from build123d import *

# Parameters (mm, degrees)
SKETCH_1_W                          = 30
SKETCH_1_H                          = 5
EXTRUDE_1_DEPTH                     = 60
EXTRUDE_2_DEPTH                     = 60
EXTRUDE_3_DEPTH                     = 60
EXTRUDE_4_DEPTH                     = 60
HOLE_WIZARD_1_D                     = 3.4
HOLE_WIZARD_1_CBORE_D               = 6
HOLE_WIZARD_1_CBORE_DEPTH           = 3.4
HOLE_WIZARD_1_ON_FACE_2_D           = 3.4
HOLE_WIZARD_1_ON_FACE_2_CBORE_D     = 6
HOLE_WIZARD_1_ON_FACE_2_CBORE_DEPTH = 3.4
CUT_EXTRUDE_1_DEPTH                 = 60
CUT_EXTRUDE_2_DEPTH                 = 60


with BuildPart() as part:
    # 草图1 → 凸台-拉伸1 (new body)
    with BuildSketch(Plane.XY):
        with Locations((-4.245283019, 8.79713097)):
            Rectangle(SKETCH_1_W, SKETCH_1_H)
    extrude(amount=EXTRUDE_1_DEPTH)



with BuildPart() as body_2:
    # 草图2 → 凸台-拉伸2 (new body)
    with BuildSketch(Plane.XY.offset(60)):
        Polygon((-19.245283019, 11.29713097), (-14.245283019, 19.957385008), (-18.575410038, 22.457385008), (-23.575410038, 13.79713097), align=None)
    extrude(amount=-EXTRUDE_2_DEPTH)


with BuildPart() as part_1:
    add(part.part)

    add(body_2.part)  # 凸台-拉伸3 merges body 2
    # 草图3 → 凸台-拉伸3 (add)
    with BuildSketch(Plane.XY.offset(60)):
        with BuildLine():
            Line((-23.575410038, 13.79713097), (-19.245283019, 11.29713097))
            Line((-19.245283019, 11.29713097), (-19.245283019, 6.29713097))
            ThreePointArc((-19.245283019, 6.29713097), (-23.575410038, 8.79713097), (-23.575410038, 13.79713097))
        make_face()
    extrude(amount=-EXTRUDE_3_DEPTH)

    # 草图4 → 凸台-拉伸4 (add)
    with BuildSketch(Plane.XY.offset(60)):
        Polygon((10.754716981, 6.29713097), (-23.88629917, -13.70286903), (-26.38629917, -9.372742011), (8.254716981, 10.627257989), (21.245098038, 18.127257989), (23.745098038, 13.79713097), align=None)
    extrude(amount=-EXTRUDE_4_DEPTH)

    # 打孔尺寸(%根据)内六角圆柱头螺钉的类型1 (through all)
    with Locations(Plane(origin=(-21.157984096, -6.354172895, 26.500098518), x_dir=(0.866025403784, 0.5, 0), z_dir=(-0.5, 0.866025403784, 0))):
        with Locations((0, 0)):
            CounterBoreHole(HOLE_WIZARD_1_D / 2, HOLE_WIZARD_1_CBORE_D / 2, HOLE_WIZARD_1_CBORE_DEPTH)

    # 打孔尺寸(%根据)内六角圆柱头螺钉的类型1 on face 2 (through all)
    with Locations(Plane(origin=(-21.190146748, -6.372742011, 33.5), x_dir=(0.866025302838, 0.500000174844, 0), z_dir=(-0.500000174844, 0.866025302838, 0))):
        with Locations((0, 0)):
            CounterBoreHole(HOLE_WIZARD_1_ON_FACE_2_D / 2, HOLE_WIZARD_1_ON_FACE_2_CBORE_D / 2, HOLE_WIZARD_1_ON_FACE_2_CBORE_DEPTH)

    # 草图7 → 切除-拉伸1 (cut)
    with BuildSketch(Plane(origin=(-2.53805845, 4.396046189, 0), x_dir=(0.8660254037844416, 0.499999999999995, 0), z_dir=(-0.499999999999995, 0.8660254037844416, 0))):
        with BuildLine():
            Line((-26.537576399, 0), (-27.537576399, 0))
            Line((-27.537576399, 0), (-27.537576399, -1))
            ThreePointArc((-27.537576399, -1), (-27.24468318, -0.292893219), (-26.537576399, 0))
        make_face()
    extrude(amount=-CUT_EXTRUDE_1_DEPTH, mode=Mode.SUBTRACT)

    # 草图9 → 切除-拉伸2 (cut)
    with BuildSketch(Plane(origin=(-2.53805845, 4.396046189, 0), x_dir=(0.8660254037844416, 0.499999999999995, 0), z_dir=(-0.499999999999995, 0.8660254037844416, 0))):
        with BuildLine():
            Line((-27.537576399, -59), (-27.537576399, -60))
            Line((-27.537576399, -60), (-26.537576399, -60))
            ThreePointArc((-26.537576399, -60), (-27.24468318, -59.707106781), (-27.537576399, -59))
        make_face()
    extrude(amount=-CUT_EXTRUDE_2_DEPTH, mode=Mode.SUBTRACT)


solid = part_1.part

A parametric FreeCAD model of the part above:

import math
import FreeCAD as App
import Part
import Sketcher
from FreeCAD import Vector
Q = App.Units.Quantity


def add_polygon(sketch, points):
    """Adds a closed chain of lines whose ends are joined by coincident constraints."""
    first, n = sketch.GeometryCount, len(points)
    for a, b in zip(points, points[1:] + points[:1]):
        sketch.addGeometry(Part.LineSegment(App.Vector(*a, 0), App.Vector(*b, 0)), False)
    for i in range(n):
        sketch.addConstraint(Sketcher.Constraint("Coincident", first + i, 2, first + (i + 1) % n, 1))

doc = App.newDocument("Part")
params = doc.addObject("Spreadsheet::Sheet", "Params")
for row, (alias, value) in enumerate([
    ("sketch1_width", "30 mm"),
    ("sketch1_height", "5 mm"),
    ("pad1_length", "60 mm"),
    ("sketch2_length", "10 mm"),
    ("sketch2_length2", "5 mm"),
    ("pad2_length", "60 mm"),
    ("sketch3_radius", "5 mm"),
    ("pad3_length", "60 mm"),
    ("sketch4_length", "40 mm"),
    ("sketch4_length2", "15 mm"),
    ("sketch4_length3", "5 mm"),
    ("pad4_length", "60 mm"),
    ("sketch5_diameter", "3.4 mm"),
    ("hole_diameter", "3.4 mm"),
    ("hole_cbore_diameter", "6 mm"),
    ("hole_cbore_depth", "3.4 mm"),
    ("sketch6_diameter", "3.4 mm"),
    ("hole2_diameter", "3.4 mm"),
    ("hole2_cbore_diameter", "6 mm"),
    ("hole2_cbore_depth", "3.4 mm"),
    ("sketch7_radius", "1 mm"),
    ("pocket1_length", "60 mm"),
    ("sketch8_radius", "1 mm"),
    ("pocket2_length", "60 mm"),
], start=1):
    params.set(f"A{row}", alias)
    params.set(f"B{row}", "=" + value)
    params.setAlias(f"B{row}", alias)

body = doc.addObject("PartDesign::Body", "Body")

# Sketch on XY plane
sketch1 = doc.addObject("Sketcher::SketchObject", "Sketch")
body.addObject(sketch1)
sketch1.AttachmentSupport = (doc.XY_Plane, [""])
sketch1.MapMode = "FlatFace"
add_polygon(sketch1, [(-19.2, 11.3), (-19.2, 6.3), (10.8, 6.3), (10.8, 11.3)])  # lines 0-3
sketch1.addConstraint(Sketcher.Constraint("Vertical", 0))
sketch1.addConstraint(Sketcher.Constraint("Horizontal", 1))
sketch1.addConstraint(Sketcher.Constraint("Vertical", 2))
sketch1.addConstraint(Sketcher.Constraint("Horizontal", 3))
sketch1.addConstraint(Sketcher.Constraint("DistanceX", 1, 1, 1, 2, Q("30 mm")))
sketch1.addConstraint(Sketcher.Constraint("DistanceY", 0, 2, 0, 1, Q("5 mm")))
sketch1.addConstraint(Sketcher.Constraint("DistanceY", -1, 1, 0, 2, Q("6.297131 mm")))
sketch1.addConstraint(Sketcher.Constraint("DistanceX", 0, 2, -1, 1, Q("19.245283 mm")))
sketch1.setExpression("Constraints[8]", "Params.sketch1_width")
sketch1.setExpression("Constraints[9]", "Params.sketch1_height")
pad1 = doc.addObject("PartDesign::Pad", "Pad")
body.addObject(pad1)
pad1.Profile = sketch1
pad1.setExpression("Length", "Params.pad1_length")
body2 = doc.addObject("PartDesign::Body", "Body001")

# Sketch on XY plane
sketch2 = doc.addObject("Sketcher::SketchObject", "Sketch001")
body2.addObject(sketch2)
sketch2.AttachmentSupport = (doc.getObject("XY_Plane001"), [""])
sketch2.MapMode = "FlatFace"
sketch2.AttachmentOffset = App.Placement(Vector(0, 0, 60), App.Rotation())
add_polygon(sketch2, [(-19, 11), (-14, 20), (-19, 22), (-24, 14)])  # lines 0-3
sketch2.addConstraint(Sketcher.Constraint("Perpendicular", 0, 1))
sketch2.addConstraint(Sketcher.Constraint("Perpendicular", 1, 2))
sketch2.addConstraint(Sketcher.Constraint("Perpendicular", 2, 3))
sketch2.addConstraint(Sketcher.Constraint("Angle", 0, Q("60 deg")))
sketch2.addConstraint(Sketcher.Constraint("Distance", 0, Q("10 mm")))
sketch2.addConstraint(Sketcher.Constraint("Distance", 1, Q("5 mm")))
sketch2.addConstraint(Sketcher.Constraint("DistanceX", 1, 2, -1, 1, Q("18.57541 mm")))
sketch2.addConstraint(Sketcher.Constraint("DistanceY", -1, 1, 2, 2, Q("13.797131 mm")))
sketch2.setExpression("Constraints[8]", "Params.sketch2_length")
sketch2.setExpression("Constraints[9]", "Params.sketch2_length2")
pad2 = doc.addObject("PartDesign::Pad", "Pad001")
body2.addObject(pad2)
pad2.Profile = sketch2
pad2.setExpression("Length", "Params.pad2_length")
pad2.Reversed = True
body.AllowCompound = True
doc.recompute()

boolean = doc.addObject("PartDesign::Boolean", "Boolean")
body.addObject(boolean)
boolean.Type = "Fuse"
boolean.addObjects([body2])

# Sketch on XY plane
sketch3 = doc.addObject("Sketcher::SketchObject", "Sketch002")
body.addObject(sketch3)
sketch3.AttachmentSupport = (doc.XY_Plane, [""])
sketch3.MapMode = "FlatFace"
sketch3.AttachmentOffset = App.Placement(Vector(0, 0, 60), App.Rotation())
sketch3.addGeometry(Part.LineSegment(Vector(-19.2, 11.3, 0), Vector(-23.6, 13.8, 0)), False)
sketch3.addGeometry(Part.ArcOfCircle(Part.Circle(Vector(-19.2, 11.3, 0), Vector(0, 0, 1), 5), math.radians(150), math.radians(270)), False)
sketch3.addGeometry(Part.LineSegment(Vector(-19.2, 6.3, 0), Vector(-19.2, 11.3, 0)), False)
sketch3.addConstraint(Sketcher.Constraint("Coincident", 0, 2, 1, 1))
sketch3.addConstraint(Sketcher.Constraint("Coincident", 1, 2, 2, 1))
sketch3.addConstraint(Sketcher.Constraint("Coincident", 2, 2, 0, 1))
sketch3.addConstraint(Sketcher.Constraint("Vertical", 2))
sketch3.addConstraint(Sketcher.Constraint("Coincident", 2, 2, 1, 3))
sketch3.addConstraint(Sketcher.Constraint("Radius", 1, Q("5 mm")))
sketch3.addConstraint(Sketcher.Constraint("Angle", 0, Q("150 deg")))
sketch3.addConstraint(Sketcher.Constraint("DistanceY", -1, 1, 1, 3, Q("11.297131 mm")))
sketch3.addConstraint(Sketcher.Constraint("DistanceX", 0, 2, -1, 1, Q("23.57541 mm")))
sketch3.setExpression("Constraints[5]", "Params.sketch3_radius")
pad3 = doc.addObject("PartDesign::Pad", "Pad002")
body.addObject(pad3)
pad3.Profile = sketch3
pad3.setExpression("Length", "Params.pad3_length")
pad3.Reversed = True

# Sketch on XY plane
sketch4 = doc.addObject("Sketcher::SketchObject", "Sketch003")
body.addObject(sketch4)
sketch4.AttachmentSupport = (doc.XY_Plane, [""])
sketch4.MapMode = "FlatFace"
sketch4.AttachmentOffset = App.Placement(Vector(0, 0, 60), App.Rotation())
add_polygon(sketch4, [(-24, -14), (11, 6), (24, 14), (21, 18), (8, 11), (-26, -9)])  # lines 0-5
sketch4.addConstraint(Sketcher.Constraint("Parallel", 0, 1))
sketch4.addConstraint(Sketcher.Constraint("Perpendicular", 1, 2))
sketch4.addConstraint(Sketcher.Constraint("Perpendicular", 2, 3))
sketch4.addConstraint(Sketcher.Constraint("Parallel", 3, 4))
sketch4.addConstraint(Sketcher.Constraint("Perpendicular", 4, 5))
sketch4.addConstraint(Sketcher.Constraint("Equal", 1, 3))
sketch4.addConstraint(Sketcher.Constraint("Angle", 0, Q("30 deg")))
sketch4.addConstraint(Sketcher.Constraint("Distance", 0, Q("40 mm")))
sketch4.addConstraint(Sketcher.Constraint("Distance", 1, Q("15 mm")))
sketch4.addConstraint(Sketcher.Constraint("Distance", 2, Q("5 mm")))
sketch4.addConstraint(Sketcher.Constraint("DistanceX", -1, 1, 1, 2, Q("23.745098 mm")))
sketch4.addConstraint(Sketcher.Constraint("DistanceY", -1, 1, 0, 2, Q("6.297131 mm")))
sketch4.setExpression("Constraints[13]", "Params.sketch4_length")
sketch4.setExpression("Constraints[14]", "Params.sketch4_length2")
sketch4.setExpression("Constraints[15]", "Params.sketch4_length3")
pad4 = doc.addObject("PartDesign::Pad", "Pad003")
body.addObject(pad4)
pad4.Profile = sketch4
pad4.setExpression("Length", "Params.pad4_length")
pad4.Reversed = True

# Sketch on an angled plane
sketch5 = doc.addObject("Sketcher::SketchObject", "Sketch004")
body.addObject(sketch5)
sketch5.Placement = App.Placement(Vector(-2.538058, 4.396046, 0), App.Rotation(Vector(0.866025404, 0.5, 0), Vector(0, 0, -1), Vector(-0.5, 0.866025404, 0), "ZXY"))
sketch5.addGeometry(Part.Circle(Vector(-21.5, -26.5, 0), Vector(0, 0, 1), 1.7), False)
sketch5.addConstraint(Sketcher.Constraint("Diameter", 0, Q("3.4 mm")))
sketch5.addConstraint(Sketcher.Constraint("DistanceY", 0, 3, -1, 1, Q("26.500099 mm")))
sketch5.addConstraint(Sketcher.Constraint("DistanceX", 0, 3, -1, 1, Q("21.500438 mm")))
sketch5.setExpression("Constraints[0]", "Params.sketch5_diameter")
doc.recompute()
hole = doc.addObject("PartDesign::Hole", "Hole")
body.addObject(hole)
hole.Profile = sketch5
hole.ThreadType = "None"
hole.setExpression("Diameter", "Params.hole_diameter")
hole.DepthType = "ThroughAll"
hole.HoleCutType = "Counterbore"
hole.setExpression("HoleCutDiameter", "Params.hole_cbore_diameter")
hole.setExpression("HoleCutDepth", "Params.hole_cbore_depth")

# Sketch on an angled plane
sketch6 = doc.addObject("Sketcher::SketchObject", "Sketch005")
body.addObject(sketch6)
sketch6.Placement = App.Placement(Vector(-2.538062, 4.396049, 0), App.Rotation(Vector(0.866025303, 0.500000175, 0), Vector(0, 0, -1), Vector(-0.500000175, 0.866025303, 0), "ZXY"))
sketch6.addGeometry(Part.Circle(Vector(-21.5, -33.5, 0), Vector(0, 0, 1), 1.7), False)
sketch6.addConstraint(Sketcher.Constraint("Diameter", 0, Q("3.4 mm")))
sketch6.addConstraint(Sketcher.Constraint("DistanceY", 0, 3, -1, 1, Q("33.5 mm")))
sketch6.addConstraint(Sketcher.Constraint("DistanceX", 0, 3, -1, 1, Q("21.537575 mm")))
sketch6.setExpression("Constraints[0]", "Params.sketch6_diameter")
doc.recompute()
hole2 = doc.addObject("PartDesign::Hole", "Hole001")
body.addObject(hole2)
hole2.Profile = sketch6
hole2.ThreadType = "None"
hole2.setExpression("Diameter", "Params.hole2_diameter")
hole2.DepthType = "ThroughAll"
hole2.HoleCutType = "Counterbore"
hole2.setExpression("HoleCutDiameter", "Params.hole2_cbore_diameter")
hole2.setExpression("HoleCutDepth", "Params.hole2_cbore_depth")

# Sketch on an angled plane
sketch7 = doc.addObject("Sketcher::SketchObject", "Sketch006")
body.addObject(sketch7)
sketch7.Placement = App.Placement(Vector(-2.538058, 4.396046, 0), App.Rotation(Vector(0.866025404, 0.5, 0), Vector(0, 0, -1), Vector(-0.5, 0.866025404, 0), "ZXY"))
sketch7.addGeometry(Part.LineSegment(Vector(-26.5, 0, 0), Vector(-27.5, 0, 0)), False)
sketch7.addGeometry(Part.LineSegment(Vector(-27.5, 0, 0), Vector(-27.5, -1, 0)), False)
sketch7.addGeometry(Part.ArcOfCircle(Part.Circle(Vector(-26.5, -1, 0), Vector(0, 0, 1), 1), math.radians(90), math.radians(180)), False)
sketch7.addConstraint(Sketcher.Constraint("Coincident", 0, 2, 1, 1))
sketch7.addConstraint(Sketcher.Constraint("Tangent", 1, 2, 2, 2))
sketch7.addConstraint(Sketcher.Constraint("Tangent", 2, 1, 0, 1))
sketch7.addConstraint(Sketcher.Constraint("Horizontal", 0))
sketch7.addConstraint(Sketcher.Constraint("Vertical", 1))
sketch7.addConstraint(Sketcher.Constraint("PointOnObject", 0, 2, -1))
sketch7.addConstraint(Sketcher.Constraint("Radius", 2, Q("1 mm")))
sketch7.addConstraint(Sketcher.Constraint("DistanceX", 2, 3, -1, 1, Q("26.537576 mm")))
sketch7.setExpression("Constraints[6]", "Params.sketch7_radius")
pocket1 = doc.addObject("PartDesign::Pocket", "Pocket")
body.addObject(pocket1)
pocket1.Profile = sketch7
pocket1.setExpression("Length", "Params.pocket1_length")

# Sketch on an angled plane
sketch8 = doc.addObject("Sketcher::SketchObject", "Sketch007")
body.addObject(sketch8)
sketch8.Placement = App.Placement(Vector(-2.538058, 4.396046, 0), App.Rotation(Vector(0.866025404, 0.5, 0), Vector(0, 0, -1), Vector(-0.5, 0.866025404, 0), "ZXY"))
sketch8.addGeometry(Part.LineSegment(Vector(-27.5, -59, 0), Vector(-27.5, -60, 0)), False)
sketch8.addGeometry(Part.LineSegment(Vector(-27.5, -60, 0), Vector(-26.5, -60, 0)), False)
sketch8.addGeometry(Part.ArcOfCircle(Part.Circle(Vector(-26.5, -59, 0), Vector(0, 0, 1), 1), math.radians(-180), math.radians(-90)), False)
sketch8.addConstraint(Sketcher.Constraint("Coincident", 0, 2, 1, 1))
sketch8.addConstraint(Sketcher.Constraint("Tangent", 1, 2, 2, 2))
sketch8.addConstraint(Sketcher.Constraint("Tangent", 2, 1, 0, 1))
sketch8.addConstraint(Sketcher.Constraint("Vertical", 0))
sketch8.addConstraint(Sketcher.Constraint("Horizontal", 1))
sketch8.addConstraint(Sketcher.Constraint("Radius", 2, Q("1 mm")))
sketch8.addConstraint(Sketcher.Constraint("DistanceY", 2, 3, -1, 1, Q("59 mm")))
sketch8.addConstraint(Sketcher.Constraint("DistanceX", 2, 3, -1, 1, Q("26.537576 mm")))
sketch8.setExpression("Constraints[5]", "Params.sketch8_radius")
pocket2 = doc.addObject("PartDesign::Pocket", "Pocket001")
body.addObject(pocket2)
pocket2.Profile = sketch8
pocket2.setExpression("Length", "Params.pocket2_length")

doc.recompute()
